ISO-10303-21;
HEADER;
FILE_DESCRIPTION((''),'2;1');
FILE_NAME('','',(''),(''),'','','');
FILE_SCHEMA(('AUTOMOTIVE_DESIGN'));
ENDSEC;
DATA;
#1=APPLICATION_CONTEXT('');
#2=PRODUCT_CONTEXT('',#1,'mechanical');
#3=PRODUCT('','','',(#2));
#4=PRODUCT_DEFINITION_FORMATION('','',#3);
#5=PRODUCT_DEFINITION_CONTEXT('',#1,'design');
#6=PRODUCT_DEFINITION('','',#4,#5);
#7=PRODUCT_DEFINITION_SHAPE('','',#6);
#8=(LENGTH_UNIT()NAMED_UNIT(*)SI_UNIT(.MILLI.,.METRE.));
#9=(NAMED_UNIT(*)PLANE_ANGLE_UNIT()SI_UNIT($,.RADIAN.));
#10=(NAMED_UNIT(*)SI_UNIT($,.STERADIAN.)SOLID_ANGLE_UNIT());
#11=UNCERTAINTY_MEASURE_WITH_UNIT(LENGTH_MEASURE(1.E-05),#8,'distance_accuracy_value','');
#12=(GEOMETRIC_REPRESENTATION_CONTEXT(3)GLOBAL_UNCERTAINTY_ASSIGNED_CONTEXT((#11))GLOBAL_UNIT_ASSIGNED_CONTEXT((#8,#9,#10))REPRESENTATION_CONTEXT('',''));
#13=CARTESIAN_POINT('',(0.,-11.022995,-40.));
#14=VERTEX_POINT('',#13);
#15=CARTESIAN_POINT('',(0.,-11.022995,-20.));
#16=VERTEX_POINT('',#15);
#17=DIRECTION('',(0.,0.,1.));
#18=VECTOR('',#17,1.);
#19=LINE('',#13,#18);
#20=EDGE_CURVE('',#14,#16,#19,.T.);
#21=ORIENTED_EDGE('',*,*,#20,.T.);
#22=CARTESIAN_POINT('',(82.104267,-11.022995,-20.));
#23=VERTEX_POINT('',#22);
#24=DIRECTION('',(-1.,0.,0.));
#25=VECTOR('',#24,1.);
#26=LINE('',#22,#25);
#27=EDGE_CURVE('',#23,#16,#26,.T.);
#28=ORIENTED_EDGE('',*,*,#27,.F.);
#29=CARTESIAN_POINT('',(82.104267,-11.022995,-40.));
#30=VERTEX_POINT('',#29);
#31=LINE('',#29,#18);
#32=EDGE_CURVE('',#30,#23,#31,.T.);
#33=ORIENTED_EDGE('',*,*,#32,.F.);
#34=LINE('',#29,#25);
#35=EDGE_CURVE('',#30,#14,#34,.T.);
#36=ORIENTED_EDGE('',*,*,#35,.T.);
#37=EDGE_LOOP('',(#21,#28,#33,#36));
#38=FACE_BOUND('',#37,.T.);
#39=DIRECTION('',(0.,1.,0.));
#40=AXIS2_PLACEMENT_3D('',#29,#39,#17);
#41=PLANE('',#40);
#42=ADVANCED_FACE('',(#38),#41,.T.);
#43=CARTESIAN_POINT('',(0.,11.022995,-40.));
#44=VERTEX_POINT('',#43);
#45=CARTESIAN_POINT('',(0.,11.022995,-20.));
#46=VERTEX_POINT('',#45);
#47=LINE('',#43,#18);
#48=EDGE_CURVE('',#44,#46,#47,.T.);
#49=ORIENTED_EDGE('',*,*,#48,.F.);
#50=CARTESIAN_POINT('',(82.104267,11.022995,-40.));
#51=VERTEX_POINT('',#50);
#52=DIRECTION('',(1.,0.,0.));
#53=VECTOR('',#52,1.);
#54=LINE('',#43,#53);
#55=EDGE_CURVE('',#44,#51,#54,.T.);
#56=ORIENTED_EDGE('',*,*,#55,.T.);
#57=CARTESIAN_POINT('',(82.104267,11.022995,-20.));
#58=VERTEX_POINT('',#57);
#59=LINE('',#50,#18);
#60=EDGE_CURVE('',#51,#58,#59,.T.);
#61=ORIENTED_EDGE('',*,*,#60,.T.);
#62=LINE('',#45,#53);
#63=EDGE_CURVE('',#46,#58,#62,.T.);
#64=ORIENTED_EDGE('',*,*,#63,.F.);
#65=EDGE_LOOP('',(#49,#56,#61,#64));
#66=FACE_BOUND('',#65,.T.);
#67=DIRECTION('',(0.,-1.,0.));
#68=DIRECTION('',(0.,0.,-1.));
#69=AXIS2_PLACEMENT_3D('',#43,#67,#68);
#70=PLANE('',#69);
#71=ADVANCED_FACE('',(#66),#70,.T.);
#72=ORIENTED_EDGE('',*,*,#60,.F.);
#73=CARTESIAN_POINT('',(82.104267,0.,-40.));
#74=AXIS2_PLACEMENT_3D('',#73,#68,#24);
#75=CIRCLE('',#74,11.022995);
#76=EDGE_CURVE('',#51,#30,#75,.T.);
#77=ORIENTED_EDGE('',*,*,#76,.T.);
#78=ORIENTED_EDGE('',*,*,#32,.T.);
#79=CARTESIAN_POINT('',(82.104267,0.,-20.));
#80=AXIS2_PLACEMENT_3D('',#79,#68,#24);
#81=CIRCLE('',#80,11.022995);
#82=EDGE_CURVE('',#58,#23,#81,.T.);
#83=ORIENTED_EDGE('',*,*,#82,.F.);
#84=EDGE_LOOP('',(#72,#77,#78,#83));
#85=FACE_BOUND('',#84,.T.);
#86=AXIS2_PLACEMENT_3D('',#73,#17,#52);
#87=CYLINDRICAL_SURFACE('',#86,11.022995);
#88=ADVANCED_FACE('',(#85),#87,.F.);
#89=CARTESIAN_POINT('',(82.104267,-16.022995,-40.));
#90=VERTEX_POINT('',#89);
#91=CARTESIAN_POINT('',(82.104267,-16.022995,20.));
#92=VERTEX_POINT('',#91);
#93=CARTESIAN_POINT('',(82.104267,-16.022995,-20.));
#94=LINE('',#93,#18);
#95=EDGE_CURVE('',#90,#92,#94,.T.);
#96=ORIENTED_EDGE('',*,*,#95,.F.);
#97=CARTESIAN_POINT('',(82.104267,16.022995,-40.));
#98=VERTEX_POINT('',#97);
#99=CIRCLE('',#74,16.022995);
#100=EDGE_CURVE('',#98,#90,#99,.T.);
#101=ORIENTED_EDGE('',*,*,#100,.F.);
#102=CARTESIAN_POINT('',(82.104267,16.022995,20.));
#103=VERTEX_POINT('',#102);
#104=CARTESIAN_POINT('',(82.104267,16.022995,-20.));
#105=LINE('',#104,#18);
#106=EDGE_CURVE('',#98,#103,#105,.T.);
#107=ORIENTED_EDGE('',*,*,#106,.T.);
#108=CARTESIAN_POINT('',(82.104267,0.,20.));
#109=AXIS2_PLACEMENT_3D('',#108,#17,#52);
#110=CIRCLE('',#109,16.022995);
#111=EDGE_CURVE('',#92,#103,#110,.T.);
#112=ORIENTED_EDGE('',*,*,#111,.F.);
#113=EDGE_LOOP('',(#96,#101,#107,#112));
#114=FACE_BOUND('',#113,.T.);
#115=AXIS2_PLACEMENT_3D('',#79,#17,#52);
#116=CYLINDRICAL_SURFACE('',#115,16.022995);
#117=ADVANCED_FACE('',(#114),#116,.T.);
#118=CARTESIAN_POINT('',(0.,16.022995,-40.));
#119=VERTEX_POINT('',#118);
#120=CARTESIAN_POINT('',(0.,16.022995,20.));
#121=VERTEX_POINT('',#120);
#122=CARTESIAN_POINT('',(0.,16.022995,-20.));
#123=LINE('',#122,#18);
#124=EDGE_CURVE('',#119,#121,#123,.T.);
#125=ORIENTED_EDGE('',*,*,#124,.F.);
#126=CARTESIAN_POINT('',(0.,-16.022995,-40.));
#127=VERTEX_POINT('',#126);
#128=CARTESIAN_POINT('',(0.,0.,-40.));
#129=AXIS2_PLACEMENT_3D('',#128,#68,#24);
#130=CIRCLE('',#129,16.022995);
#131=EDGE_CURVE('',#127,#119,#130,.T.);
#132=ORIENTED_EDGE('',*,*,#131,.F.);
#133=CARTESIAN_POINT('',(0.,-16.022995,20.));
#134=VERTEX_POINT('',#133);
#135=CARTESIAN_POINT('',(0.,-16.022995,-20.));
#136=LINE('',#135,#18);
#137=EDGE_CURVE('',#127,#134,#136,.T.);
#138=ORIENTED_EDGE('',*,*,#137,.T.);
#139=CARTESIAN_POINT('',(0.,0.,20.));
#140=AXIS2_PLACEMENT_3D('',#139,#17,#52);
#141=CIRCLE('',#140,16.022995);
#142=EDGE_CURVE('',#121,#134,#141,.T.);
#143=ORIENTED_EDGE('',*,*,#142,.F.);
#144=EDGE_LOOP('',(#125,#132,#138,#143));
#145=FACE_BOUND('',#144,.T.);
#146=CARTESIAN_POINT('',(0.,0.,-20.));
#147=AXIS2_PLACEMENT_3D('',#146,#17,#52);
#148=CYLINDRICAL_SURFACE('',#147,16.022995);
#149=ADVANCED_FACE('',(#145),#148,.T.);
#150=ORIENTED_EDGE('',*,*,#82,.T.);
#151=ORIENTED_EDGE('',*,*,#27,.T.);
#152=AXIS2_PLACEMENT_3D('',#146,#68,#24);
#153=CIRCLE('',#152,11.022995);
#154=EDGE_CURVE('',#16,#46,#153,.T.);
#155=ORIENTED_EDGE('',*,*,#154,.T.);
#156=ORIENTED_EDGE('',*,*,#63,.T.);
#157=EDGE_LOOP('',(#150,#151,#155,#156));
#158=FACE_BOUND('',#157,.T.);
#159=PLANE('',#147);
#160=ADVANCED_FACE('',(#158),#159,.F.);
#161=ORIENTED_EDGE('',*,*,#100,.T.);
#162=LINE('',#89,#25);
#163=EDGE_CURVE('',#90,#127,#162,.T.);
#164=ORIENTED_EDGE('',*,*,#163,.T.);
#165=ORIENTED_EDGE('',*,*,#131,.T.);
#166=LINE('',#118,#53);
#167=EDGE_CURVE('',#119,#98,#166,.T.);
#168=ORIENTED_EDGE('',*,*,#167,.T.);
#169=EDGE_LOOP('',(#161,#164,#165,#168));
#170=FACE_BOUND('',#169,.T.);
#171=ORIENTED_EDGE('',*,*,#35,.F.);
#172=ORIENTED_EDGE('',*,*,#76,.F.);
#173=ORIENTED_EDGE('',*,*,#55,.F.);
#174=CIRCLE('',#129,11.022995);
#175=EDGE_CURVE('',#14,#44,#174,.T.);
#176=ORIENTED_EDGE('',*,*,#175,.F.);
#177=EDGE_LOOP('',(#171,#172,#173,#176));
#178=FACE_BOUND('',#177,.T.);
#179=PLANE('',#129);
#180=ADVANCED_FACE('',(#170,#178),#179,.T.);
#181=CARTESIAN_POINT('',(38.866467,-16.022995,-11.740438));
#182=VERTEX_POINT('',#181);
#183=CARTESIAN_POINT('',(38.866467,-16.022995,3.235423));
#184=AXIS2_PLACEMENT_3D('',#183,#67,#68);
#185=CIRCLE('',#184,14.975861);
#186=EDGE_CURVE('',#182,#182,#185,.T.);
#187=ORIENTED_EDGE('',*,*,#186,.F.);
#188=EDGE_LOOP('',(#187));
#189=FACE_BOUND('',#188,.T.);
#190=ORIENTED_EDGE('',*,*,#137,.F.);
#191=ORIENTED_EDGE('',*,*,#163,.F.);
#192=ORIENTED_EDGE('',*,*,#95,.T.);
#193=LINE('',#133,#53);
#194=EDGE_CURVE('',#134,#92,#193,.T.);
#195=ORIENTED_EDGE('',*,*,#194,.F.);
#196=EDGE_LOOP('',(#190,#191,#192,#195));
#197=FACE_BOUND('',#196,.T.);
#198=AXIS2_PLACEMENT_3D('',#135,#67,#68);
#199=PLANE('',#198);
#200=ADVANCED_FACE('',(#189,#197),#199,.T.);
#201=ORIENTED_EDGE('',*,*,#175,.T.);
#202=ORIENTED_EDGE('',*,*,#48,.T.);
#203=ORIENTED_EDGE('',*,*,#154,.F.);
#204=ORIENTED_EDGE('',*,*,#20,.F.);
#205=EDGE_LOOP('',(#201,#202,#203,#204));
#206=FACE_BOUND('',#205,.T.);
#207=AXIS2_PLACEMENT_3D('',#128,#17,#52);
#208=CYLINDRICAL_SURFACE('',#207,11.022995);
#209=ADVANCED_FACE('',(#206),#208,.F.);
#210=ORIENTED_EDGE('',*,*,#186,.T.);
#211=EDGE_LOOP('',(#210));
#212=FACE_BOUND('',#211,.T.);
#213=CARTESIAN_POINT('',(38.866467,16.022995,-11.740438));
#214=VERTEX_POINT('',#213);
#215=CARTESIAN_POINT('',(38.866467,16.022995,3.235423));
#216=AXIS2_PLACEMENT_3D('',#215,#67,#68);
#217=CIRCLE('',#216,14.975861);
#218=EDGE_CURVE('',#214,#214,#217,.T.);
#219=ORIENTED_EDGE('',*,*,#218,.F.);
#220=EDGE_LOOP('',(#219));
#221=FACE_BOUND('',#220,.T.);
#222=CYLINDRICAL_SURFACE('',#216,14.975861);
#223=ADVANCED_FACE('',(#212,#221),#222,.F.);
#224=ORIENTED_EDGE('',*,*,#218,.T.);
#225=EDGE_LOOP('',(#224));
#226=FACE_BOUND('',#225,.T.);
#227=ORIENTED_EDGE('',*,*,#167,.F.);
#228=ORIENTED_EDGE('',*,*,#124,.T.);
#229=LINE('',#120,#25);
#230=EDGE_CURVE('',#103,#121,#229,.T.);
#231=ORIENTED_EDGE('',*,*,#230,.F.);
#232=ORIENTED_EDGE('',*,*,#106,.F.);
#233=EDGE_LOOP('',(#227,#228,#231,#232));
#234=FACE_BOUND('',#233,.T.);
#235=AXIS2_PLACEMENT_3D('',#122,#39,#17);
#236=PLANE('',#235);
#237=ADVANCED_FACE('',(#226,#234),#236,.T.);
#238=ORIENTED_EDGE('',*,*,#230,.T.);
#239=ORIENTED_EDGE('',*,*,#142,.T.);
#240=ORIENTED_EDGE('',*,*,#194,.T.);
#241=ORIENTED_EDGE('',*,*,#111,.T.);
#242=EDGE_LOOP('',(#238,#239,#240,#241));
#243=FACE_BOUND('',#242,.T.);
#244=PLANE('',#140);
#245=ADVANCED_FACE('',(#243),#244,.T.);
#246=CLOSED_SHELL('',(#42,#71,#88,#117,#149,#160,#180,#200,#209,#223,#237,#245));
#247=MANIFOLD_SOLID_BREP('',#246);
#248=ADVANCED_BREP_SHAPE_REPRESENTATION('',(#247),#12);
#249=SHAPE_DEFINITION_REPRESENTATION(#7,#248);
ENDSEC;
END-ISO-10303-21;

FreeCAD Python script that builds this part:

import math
import FreeCAD as App
import Part
import Sketcher
Q = App.Units.Quantity

doc = App.newDocument("Part")
body = doc.addObject("PartDesign::Body", "Body")

# Sketch on XY plane
sketch1 = body.newObject("Sketcher::SketchObject", "Sketch")
sketch1.AttachmentSupport = (doc.getObject("XY_Plane"), [""])
sketch1.MapMode = "FlatFace"
sketch1.addGeometry([
    Part.LineSegment(App.Vector(82, 16, 0), App.Vector(0, 16, 0)),
    Part.ArcOfCircle(Part.Circle(App.Vector(0, 0, 0), App.Vector(0, 0, 1), 16), math.radians(90), math.radians(270)),
    Part.LineSegment(App.Vector(0, -16, 0), App.Vector(82, -16, 0)),
    Part.ArcOfCircle(Part.Circle(App.Vector(82, 0, 0), App.Vector(0, 0, 1), 16), math.radians(-90), math.radians(90)),
], False)
sketch1.addConstraint([
    Sketcher.Constraint("Tangent", 0, 2, 1, 1),
    Sketcher.Constraint("Tangent", 1, 2, 2, 1),
    Sketcher.Constraint("Tangent", 2, 2, 3, 1),
    Sketcher.Constraint("Tangent", 3, 2, 0, 1),
    Sketcher.Constraint("Horizontal", 0),
    Sketcher.Constraint("Horizontal", 2),
    Sketcher.Constraint("Coincident", 1, 3, -1, 1),
    Sketcher.Constraint("Radius", 1, Q("16.022995 mm")),
    Sketcher.Constraint("DistanceX", 0, 2, 0, 1, Q("82.104267 mm")),
])
pad1 = body.newObject("PartDesign::Pad", "Pad")
pad1.Profile = sketch1
pad1.Type = "TwoLengths"
pad1.Length = 20
pad1.Length2 = 20

# Sketch on XY plane
sketch2 = body.newObject("Sketcher::SketchObject", "Sketch001")
sketch2.AttachmentSupport = (doc.getObject("XY_Plane"), [""])
sketch2.MapMode = "FlatFace"
sketch2.AttachmentOffset = App.Placement(App.Vector(0, 0, -40), App.Rotation())
sketch2.addGeometry([
    Part.LineSegment(App.Vector(82, -16, 0), App.Vector(0, -16, 0)),  # 0
    Part.ArcOfCircle(Part.Circle(App.Vector(0, 0, 0), App.Vector(0, 0, 1), 16), math.radians(90), math.radians(270)),  # 1
    Part.LineSegment(App.Vector(0, 16, 0), App.Vector(82, 16, 0)),  # 2
    Part.ArcOfCircle(Part.Circle(App.Vector(82, 0, 0), App.Vector(0, 0, 1), 16), math.radians(-90), math.radians(90)),  # 3
    Part.LineSegment(App.Vector(0, -11, 0), App.Vector(82, -11, 0)),  # 4
    Part.ArcOfCircle(Part.Circle(App.Vector(82, 0, 0), App.Vector(0, 0, 1), 11), math.radians(-90), math.radians(90)),  # 5
    Part.LineSegment(App.Vector(82, 11, 0), App.Vector(0, 11, 0)),  # 6
    Part.ArcOfCircle(Part.Circle(App.Vector(0, 0, 0), App.Vector(0, 0, 1), 11), math.radians(90), math.radians(270)),  # 7
], False)
sketch2.addConstraint([
    Sketcher.Constraint("Tangent", 0, 2, 1, 2),
    Sketcher.Constraint("Tangent", 1, 1, 2, 1),
    Sketcher.Constraint("Tangent", 2, 2, 3, 2),
    Sketcher.Constraint("Tangent", 3, 1, 0, 1),
    Sketcher.Constraint("Tangent", 4, 2, 5, 1),
    Sketcher.Constraint("Tangent", 5, 2, 6, 1),
    Sketcher.Constraint("Tangent", 6, 2, 7, 1),
    Sketcher.Constraint("Tangent", 7, 2, 4, 1),
    Sketcher.Constraint("Horizontal", 0),
    Sketcher.Constraint("Horizontal", 2),
    Sketcher.Constraint("Horizontal", 4),
    Sketcher.Constraint("Horizontal", 6),
    Sketcher.Constraint("Coincident", 1, 3, -1, 1),
    Sketcher.Constraint("Coincident", 7, 3, -1, 1),
    Sketcher.Constraint("Vertical", 5, 3, 2, 2),
    Sketcher.Constraint("DistanceY", 3, 1, 4, 2, Q("5 mm")),
    Sketcher.Constraint("Radius", 1, Q("16.022995 mm")),
    Sketcher.Constraint("DistanceX", 0, 2, 0, 1, Q("82.104267 mm")),
])
pad2 = body.newObject("PartDesign::Pad", "Pad001")
pad2.Profile = sketch2
pad2.Length = 20

# Sketch on XZ plane
sketch3 = body.newObject("Sketcher::SketchObject", "Sketch002")
sketch3.AttachmentSupport = (doc.getObject("XZ_Plane"), [""])
sketch3.MapMode = "FlatFace"
sketch3.AttachmentOffset = App.Placement(App.Vector(0, 0, 16.022995), App.Rotation())
sketch3.addGeometry(Part.Circle(App.Vector(39, 3, 0), App.Vector(0, 0, 1), 15), False)
sketch3.addConstraint([
    Sketcher.Constraint("Diameter", 0, Q("29.951722 mm")),
    Sketcher.Constraint("DistanceX", -1, 1, 0, 3, Q("38.866467 mm")),
    Sketcher.Constraint("DistanceY", -1, 1, 0, 3, Q("3.235423 mm")),
])
pocket1 = body.newObject("PartDesign::Pocket", "Pocket")
pocket1.Profile = sketch3
pocket1.Type = "ThroughAll"

doc.recompute()
